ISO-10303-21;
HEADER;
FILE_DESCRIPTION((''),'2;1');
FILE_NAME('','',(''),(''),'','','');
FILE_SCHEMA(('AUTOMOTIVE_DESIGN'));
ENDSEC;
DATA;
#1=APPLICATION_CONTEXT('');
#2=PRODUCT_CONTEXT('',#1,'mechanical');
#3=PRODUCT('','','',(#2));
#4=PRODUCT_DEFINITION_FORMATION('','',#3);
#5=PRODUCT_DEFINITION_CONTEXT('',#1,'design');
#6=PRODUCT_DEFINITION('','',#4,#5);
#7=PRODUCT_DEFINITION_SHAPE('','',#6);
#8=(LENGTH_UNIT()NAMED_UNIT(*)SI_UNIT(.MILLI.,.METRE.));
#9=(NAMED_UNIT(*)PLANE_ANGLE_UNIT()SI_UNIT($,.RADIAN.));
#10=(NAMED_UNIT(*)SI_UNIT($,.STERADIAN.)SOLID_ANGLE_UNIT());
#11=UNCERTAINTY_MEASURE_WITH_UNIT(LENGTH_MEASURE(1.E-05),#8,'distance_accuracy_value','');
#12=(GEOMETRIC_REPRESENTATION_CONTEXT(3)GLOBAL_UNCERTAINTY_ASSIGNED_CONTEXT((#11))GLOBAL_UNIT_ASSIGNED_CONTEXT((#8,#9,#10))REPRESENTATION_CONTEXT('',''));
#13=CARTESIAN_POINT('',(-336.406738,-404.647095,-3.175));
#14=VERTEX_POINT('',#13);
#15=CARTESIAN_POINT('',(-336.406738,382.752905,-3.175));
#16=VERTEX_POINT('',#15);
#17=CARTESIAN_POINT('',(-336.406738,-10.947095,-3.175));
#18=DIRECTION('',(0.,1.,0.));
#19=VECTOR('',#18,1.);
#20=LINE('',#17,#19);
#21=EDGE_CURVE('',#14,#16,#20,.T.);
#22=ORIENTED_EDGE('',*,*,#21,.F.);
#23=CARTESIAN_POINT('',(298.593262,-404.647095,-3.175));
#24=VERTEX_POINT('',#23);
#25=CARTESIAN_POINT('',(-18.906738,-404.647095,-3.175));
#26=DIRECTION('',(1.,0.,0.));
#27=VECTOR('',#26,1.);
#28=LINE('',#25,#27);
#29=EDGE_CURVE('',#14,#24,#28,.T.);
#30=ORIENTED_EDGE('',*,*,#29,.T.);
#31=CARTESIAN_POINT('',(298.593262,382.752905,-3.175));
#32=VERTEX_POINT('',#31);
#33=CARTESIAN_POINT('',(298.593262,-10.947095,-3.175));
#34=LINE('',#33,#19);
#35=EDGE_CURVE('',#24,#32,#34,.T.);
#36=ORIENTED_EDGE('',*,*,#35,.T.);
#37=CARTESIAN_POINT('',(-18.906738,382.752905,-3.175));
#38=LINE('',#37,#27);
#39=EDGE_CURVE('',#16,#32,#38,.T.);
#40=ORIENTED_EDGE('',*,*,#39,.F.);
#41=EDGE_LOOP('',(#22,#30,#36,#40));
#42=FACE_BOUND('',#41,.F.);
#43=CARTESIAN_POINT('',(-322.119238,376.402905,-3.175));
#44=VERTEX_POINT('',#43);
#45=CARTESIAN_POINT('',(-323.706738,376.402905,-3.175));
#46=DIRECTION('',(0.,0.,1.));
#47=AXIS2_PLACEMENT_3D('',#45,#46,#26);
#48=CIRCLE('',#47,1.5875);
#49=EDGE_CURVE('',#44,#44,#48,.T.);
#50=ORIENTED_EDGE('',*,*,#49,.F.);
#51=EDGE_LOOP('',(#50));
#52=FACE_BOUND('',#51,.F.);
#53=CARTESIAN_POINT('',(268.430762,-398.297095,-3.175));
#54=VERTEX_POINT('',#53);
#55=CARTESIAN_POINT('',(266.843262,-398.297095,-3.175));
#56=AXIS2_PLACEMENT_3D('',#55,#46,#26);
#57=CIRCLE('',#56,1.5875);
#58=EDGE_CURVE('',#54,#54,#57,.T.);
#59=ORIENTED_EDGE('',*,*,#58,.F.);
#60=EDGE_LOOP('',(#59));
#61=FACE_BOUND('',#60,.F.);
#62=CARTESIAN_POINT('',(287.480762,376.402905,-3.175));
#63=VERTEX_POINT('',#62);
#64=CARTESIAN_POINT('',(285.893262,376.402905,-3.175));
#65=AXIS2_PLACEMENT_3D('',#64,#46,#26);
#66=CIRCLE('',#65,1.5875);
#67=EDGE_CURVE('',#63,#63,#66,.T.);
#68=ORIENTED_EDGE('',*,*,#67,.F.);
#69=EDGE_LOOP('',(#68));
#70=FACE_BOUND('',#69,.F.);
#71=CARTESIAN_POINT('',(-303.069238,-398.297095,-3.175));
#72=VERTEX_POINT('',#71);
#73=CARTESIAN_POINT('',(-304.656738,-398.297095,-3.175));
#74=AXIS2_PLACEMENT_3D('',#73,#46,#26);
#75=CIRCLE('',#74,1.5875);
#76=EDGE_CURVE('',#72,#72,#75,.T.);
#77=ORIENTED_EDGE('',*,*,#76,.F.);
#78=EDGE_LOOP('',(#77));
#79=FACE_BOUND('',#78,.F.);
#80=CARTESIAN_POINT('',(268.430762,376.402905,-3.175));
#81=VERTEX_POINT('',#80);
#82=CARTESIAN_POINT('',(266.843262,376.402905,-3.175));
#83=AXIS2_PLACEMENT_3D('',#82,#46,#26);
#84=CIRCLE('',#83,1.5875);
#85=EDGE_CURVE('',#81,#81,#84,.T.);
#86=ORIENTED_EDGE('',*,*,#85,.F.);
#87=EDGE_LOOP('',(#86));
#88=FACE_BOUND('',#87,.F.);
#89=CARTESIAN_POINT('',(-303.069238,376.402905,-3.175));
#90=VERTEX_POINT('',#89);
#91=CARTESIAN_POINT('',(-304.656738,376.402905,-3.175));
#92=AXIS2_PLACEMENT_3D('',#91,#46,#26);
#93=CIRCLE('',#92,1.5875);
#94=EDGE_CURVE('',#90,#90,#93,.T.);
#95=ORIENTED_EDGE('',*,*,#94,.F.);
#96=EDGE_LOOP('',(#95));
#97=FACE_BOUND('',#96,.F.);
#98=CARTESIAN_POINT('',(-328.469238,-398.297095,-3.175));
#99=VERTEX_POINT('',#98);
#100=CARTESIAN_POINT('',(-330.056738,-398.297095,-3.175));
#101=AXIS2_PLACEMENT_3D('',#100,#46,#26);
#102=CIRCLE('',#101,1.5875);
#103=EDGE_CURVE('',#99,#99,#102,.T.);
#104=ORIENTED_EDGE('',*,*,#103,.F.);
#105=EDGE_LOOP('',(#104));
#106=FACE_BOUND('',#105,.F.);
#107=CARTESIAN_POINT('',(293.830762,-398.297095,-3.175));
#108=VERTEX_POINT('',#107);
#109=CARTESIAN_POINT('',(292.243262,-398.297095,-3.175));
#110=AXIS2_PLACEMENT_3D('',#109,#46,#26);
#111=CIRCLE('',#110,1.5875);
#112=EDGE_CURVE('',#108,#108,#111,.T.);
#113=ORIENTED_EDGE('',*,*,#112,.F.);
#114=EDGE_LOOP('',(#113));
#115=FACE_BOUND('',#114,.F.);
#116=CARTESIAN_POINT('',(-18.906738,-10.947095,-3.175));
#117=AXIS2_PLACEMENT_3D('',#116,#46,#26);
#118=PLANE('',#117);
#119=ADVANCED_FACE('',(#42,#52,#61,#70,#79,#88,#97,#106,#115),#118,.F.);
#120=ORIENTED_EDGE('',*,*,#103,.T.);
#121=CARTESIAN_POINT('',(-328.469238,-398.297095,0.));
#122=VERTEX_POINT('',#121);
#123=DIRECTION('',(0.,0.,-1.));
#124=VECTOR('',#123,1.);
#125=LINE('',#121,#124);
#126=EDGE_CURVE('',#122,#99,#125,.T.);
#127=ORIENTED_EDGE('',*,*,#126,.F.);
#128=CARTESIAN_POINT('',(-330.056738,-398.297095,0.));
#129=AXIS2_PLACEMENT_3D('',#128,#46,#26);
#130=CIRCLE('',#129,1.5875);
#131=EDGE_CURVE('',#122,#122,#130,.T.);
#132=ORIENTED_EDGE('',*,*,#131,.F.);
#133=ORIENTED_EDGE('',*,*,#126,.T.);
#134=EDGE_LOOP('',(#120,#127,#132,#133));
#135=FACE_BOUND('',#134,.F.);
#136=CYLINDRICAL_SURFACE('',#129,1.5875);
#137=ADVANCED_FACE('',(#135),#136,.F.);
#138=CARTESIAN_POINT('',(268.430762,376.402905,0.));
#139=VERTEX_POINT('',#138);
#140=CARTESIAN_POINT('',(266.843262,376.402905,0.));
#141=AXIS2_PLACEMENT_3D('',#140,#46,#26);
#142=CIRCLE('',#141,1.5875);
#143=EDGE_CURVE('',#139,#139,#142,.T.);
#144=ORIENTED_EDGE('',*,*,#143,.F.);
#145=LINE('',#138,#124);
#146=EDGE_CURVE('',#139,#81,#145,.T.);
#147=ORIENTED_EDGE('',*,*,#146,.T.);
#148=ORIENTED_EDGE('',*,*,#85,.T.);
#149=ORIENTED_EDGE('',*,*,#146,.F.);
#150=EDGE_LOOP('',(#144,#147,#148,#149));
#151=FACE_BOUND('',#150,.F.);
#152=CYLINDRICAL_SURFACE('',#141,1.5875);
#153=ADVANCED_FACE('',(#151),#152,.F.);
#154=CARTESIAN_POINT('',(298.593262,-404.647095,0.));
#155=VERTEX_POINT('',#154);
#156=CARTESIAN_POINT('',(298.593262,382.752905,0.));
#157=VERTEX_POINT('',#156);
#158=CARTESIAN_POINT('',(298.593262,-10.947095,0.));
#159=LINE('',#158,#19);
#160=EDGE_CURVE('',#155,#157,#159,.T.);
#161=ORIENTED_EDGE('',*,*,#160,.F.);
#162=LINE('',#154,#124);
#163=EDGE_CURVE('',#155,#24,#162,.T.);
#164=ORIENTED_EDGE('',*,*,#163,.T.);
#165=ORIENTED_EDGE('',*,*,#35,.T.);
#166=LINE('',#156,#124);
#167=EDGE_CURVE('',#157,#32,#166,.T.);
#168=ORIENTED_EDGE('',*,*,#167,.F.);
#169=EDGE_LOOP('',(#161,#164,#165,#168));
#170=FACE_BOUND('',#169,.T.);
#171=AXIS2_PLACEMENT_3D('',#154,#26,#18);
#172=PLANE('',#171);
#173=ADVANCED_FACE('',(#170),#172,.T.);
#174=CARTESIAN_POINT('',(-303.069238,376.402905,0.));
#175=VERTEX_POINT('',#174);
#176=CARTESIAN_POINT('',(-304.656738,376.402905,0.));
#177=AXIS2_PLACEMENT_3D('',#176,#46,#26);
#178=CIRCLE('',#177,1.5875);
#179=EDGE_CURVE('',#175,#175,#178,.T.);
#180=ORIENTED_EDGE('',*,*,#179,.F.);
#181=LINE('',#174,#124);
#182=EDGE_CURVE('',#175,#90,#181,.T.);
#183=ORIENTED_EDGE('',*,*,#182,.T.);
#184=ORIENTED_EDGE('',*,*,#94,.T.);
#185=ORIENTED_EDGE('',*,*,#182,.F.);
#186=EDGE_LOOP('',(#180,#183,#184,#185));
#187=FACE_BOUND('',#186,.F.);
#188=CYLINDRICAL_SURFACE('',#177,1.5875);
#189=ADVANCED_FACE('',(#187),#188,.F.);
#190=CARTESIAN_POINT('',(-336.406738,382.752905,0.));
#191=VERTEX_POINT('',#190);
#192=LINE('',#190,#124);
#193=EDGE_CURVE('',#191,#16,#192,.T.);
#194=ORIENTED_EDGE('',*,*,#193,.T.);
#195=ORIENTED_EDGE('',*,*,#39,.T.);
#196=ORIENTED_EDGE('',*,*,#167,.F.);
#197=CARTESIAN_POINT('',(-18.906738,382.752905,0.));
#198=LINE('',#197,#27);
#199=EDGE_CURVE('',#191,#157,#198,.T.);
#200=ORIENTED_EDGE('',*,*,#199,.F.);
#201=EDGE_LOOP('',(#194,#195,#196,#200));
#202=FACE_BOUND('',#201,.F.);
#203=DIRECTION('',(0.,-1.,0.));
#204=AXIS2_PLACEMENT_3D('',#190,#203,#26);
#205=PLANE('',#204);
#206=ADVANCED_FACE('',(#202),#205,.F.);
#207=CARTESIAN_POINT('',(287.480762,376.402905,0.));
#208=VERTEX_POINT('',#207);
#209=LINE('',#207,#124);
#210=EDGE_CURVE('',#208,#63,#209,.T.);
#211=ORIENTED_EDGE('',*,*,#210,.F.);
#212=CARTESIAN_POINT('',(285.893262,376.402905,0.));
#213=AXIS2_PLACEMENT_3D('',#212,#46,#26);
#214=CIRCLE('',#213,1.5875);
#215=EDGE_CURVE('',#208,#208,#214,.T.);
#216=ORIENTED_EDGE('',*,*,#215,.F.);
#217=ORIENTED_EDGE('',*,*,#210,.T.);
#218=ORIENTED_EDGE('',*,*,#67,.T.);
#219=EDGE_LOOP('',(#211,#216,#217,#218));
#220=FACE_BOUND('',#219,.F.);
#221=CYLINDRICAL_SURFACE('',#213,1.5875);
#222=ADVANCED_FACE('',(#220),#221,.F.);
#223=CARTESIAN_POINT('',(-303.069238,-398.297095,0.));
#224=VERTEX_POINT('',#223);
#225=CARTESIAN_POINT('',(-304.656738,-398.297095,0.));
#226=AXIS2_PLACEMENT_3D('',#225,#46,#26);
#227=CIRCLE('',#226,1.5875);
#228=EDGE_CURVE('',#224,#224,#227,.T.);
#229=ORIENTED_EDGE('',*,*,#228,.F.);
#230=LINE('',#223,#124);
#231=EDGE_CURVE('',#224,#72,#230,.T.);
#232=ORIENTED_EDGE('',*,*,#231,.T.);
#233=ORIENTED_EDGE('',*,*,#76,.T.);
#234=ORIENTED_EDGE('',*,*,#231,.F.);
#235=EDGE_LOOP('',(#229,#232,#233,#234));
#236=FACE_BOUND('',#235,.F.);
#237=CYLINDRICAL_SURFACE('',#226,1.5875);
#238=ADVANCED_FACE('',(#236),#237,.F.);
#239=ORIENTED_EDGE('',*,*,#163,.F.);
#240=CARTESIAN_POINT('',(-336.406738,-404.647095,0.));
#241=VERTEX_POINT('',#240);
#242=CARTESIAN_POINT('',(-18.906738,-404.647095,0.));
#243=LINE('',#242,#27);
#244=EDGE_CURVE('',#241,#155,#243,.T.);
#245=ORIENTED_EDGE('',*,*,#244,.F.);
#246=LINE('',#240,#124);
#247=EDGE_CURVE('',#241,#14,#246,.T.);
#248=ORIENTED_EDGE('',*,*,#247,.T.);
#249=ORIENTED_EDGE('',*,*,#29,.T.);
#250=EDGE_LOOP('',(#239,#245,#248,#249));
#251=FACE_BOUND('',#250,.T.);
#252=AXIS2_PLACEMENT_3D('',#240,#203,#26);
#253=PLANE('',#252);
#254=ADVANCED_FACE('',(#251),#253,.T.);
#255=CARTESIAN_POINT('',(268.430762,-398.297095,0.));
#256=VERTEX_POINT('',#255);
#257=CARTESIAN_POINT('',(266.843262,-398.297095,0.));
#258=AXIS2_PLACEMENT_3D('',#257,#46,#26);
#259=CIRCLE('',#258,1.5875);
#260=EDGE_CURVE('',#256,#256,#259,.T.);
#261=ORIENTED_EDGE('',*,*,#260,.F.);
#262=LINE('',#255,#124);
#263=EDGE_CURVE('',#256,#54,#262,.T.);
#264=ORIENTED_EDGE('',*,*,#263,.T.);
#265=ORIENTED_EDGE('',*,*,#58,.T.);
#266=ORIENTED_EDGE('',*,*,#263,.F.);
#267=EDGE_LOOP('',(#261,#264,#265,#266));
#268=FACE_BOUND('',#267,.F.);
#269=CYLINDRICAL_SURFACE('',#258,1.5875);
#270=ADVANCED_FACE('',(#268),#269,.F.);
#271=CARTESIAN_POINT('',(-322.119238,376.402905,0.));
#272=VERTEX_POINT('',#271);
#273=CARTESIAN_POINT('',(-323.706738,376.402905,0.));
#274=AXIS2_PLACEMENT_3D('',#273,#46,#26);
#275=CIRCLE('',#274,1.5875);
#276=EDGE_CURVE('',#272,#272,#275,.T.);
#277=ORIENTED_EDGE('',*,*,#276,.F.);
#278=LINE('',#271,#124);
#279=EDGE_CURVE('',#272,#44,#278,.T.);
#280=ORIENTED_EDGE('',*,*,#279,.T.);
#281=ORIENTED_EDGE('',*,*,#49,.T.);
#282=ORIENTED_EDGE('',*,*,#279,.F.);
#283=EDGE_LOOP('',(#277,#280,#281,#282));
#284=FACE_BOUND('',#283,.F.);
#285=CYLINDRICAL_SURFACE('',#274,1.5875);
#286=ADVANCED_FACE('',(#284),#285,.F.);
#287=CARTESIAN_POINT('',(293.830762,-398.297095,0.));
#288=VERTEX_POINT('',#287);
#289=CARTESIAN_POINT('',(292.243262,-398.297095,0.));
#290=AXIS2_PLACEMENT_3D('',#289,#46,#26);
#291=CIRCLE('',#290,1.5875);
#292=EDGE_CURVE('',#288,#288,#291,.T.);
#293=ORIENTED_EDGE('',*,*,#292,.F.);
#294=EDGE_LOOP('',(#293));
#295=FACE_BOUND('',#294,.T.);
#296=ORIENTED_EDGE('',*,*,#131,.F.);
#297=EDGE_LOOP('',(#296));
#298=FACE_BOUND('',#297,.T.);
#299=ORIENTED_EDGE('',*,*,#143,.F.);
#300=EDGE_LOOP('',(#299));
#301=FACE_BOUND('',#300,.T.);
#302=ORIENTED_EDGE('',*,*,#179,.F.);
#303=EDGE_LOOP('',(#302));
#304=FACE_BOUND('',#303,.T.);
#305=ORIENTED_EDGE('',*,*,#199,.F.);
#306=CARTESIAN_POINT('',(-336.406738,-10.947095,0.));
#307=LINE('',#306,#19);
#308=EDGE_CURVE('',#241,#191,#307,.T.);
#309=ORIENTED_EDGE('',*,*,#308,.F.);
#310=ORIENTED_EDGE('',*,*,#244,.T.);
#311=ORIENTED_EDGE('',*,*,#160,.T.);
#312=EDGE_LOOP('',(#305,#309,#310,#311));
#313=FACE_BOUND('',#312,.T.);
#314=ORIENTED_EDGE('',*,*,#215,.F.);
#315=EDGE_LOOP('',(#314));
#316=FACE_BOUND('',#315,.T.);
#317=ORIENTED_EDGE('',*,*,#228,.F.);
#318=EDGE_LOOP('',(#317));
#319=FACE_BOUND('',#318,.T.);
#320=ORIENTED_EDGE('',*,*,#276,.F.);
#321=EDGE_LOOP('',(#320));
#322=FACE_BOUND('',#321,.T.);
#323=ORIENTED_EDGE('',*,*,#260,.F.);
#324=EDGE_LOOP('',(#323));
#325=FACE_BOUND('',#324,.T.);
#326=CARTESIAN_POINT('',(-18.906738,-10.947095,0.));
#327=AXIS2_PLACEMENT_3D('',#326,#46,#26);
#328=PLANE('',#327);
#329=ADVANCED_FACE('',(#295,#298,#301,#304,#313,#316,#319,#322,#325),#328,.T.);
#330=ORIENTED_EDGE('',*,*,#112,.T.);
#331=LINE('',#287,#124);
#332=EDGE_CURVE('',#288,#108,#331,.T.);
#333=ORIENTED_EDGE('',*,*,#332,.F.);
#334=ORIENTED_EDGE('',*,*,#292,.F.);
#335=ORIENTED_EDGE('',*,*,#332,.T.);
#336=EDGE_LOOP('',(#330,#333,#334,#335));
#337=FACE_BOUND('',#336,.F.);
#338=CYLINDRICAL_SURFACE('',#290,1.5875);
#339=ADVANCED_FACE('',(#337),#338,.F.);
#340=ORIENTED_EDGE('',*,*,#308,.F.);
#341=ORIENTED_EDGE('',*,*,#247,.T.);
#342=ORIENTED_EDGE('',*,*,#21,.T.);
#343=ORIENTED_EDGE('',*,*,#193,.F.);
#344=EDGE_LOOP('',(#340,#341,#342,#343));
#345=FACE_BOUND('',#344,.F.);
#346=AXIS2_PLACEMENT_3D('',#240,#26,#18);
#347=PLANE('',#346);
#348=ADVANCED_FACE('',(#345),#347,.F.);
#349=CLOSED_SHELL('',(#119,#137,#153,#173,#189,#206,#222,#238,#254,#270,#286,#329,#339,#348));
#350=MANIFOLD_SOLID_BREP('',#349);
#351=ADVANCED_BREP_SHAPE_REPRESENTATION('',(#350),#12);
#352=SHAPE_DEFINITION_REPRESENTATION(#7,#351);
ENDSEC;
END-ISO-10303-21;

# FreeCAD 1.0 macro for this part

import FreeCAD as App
import Part
import Sketcher

V = App.Vector
Q = App.Units.Quantity

doc = App.newDocument("Part")
body = doc.addObject("PartDesign::Body", "Body")

# Sketch on XY plane
sketch1 = body.newObject("Sketcher::SketchObject", "Sketch")
sketch1.AttachmentSupport = (doc.getObject("XY_Plane"), [""])
sketch1.MapMode = "FlatFace"
sketch1.addGeometry(Part.LineSegment(V(-336.406738, 382.752905, 0), V(-336.406738, -404.647095, 0)), False)
sketch1.addGeometry(Part.LineSegment(V(-336.406738, -404.647095, 0), V(298.593262, -404.647095, 0)), False)
sketch1.addGeometry(Part.LineSegment(V(298.593262, -404.647095, 0), V(298.593262, 382.752905, 0)), False)
sketch1.addGeometry(Part.LineSegment(V(298.593262, 382.752905, 0), V(-336.406738, 382.752905, 0)), False)
sketch1.addGeometry(Part.Circle(V(-330.056738, -398.297095, 0), V(0, 0, 1), 1.5875), False)
sketch1.addGeometry(Part.Circle(V(-304.656738, -398.297095, 0), V(0, 0, 1), 1.5875), False)
sketch1.addGeometry(Part.Circle(V(266.843262, -398.297095, 0), V(0, 0, 1), 1.5875), False)
sketch1.addGeometry(Part.Circle(V(292.243262, -398.297095, 0), V(0, 0, 1), 1.5875), False)
sketch1.addGeometry(Part.Circle(V(-323.706738, 376.402905, 0), V(0, 0, 1), 1.5875), False)
sketch1.addGeometry(Part.Circle(V(-304.656738, 376.402905, 0), V(0, 0, 1), 1.5875), False)
sketch1.addGeometry(Part.Circle(V(266.843262, 376.402905, 0), V(0, 0, 1), 1.5875), False)
sketch1.addGeometry(Part.Circle(V(285.893262, 376.402905, 0), V(0, 0, 1), 1.5875), False)
sketch1.addConstraint(Sketcher.Constraint("Coincident", 0, 2, 1, 1))
sketch1.addConstraint(Sketcher.Constraint("Coincident", 1, 2, 2, 1))
sketch1.addConstraint(Sketcher.Constraint("Coincident", 2, 2, 3, 1))
sketch1.addConstraint(Sketcher.Constraint("Coincident", 3, 2, 0, 1))
sketch1.addConstraint(Sketcher.Constraint("Vertical", 0))
sketch1.addConstraint(Sketcher.Constraint("Horizontal", 1))
sketch1.addConstraint(Sketcher.Constraint("Vertical", 2))
sketch1.addConstraint(Sketcher.Constraint("Horizontal", 3))
sketch1.addConstraint(Sketcher.Constraint("Equal", 4, 5))
sketch1.addConstraint(Sketcher.Constraint("Equal", 5, 6))
sketch1.addConstraint(Sketcher.Constraint("Equal", 6, 7))
sketch1.addConstraint(Sketcher.Constraint("Equal", 7, 8))
sketch1.addConstraint(Sketcher.Constraint("Equal", 8, 9))
sketch1.addConstraint(Sketcher.Constraint("Equal", 9, 10))
sketch1.addConstraint(Sketcher.Constraint("Equal", 10, 11))
sketch1.addConstraint(Sketcher.Constraint("Horizontal", 4, 3, 5, 3))
sketch1.addConstraint(Sketcher.Constraint("Horizontal", 5, 3, 6, 3))
sketch1.addConstraint(Sketcher.Constraint("Horizontal", 6, 3, 7, 3))
sketch1.addConstraint(Sketcher.Constraint("Horizontal", 8, 3, 9, 3))
sketch1.addConstraint(Sketcher.Constraint("Horizontal", 9, 3, 10, 3))
sketch1.addConstraint(Sketcher.Constraint("Horizontal", 10, 3, 11, 3))
sketch1.addConstraint(Sketcher.Constraint("Vertical", 5, 3, 9, 3))
sketch1.addConstraint(Sketcher.Constraint("Vertical", 6, 3, 10, 3))
sketch1.addConstraint(Sketcher.Constraint("DistanceX", 1, 1, 1, 2, Q("25 in")))
sketch1.addConstraint(Sketcher.Constraint("DistanceY", 0, 2, 0, 1, Q("31 in")))
sketch1.addConstraint(Sketcher.Constraint("Diameter", 4, Q("0.125 in")))
sketch1.addConstraint(Sketcher.Constraint("DistanceX", 4, 3, 5, 3, Q("1 in")))
sketch1.addConstraint(Sketcher.Constraint("DistanceX", 6, 3, 7, 3, Q("1 in")))
sketch1.addConstraint(Sketcher.Constraint("DistanceX", 8, 3, 11, 3, Q("24 in")))
sketch1.addConstraint(Sketcher.Constraint("DistanceX", 5, 3, 6, 3, Q("22.5 in")))
sketch1.addConstraint(Sketcher.Constraint("DistanceY", 4, 3, 8, 3, Q("30.5 in")))
sketch1.addConstraint(Sketcher.Constraint("DistanceX", 0, 2, 8, 3, Q("0.5 in")))
sketch1.addConstraint(Sketcher.Constraint("DistanceX", 4, 3, 8, 3, Q("0.25 in")))
sketch1.addConstraint(Sketcher.Constraint("DistanceY", 0, 2, 4, 3, Q("0.25 in")))
sketch1.addConstraint(Sketcher.Constraint("DistanceX", 4, 3, -1, 1, Q("330.056738 mm")))
sketch1.addConstraint(Sketcher.Constraint("DistanceY", 4, 3, -1, 1, Q("398.297095 mm")))
pad1 = body.newObject("PartDesign::Pad", "Pad")
pad1.Profile = sketch1
pad1.Length = Q("0.125 in")
pad1.Reversed = True

doc.recompute()
